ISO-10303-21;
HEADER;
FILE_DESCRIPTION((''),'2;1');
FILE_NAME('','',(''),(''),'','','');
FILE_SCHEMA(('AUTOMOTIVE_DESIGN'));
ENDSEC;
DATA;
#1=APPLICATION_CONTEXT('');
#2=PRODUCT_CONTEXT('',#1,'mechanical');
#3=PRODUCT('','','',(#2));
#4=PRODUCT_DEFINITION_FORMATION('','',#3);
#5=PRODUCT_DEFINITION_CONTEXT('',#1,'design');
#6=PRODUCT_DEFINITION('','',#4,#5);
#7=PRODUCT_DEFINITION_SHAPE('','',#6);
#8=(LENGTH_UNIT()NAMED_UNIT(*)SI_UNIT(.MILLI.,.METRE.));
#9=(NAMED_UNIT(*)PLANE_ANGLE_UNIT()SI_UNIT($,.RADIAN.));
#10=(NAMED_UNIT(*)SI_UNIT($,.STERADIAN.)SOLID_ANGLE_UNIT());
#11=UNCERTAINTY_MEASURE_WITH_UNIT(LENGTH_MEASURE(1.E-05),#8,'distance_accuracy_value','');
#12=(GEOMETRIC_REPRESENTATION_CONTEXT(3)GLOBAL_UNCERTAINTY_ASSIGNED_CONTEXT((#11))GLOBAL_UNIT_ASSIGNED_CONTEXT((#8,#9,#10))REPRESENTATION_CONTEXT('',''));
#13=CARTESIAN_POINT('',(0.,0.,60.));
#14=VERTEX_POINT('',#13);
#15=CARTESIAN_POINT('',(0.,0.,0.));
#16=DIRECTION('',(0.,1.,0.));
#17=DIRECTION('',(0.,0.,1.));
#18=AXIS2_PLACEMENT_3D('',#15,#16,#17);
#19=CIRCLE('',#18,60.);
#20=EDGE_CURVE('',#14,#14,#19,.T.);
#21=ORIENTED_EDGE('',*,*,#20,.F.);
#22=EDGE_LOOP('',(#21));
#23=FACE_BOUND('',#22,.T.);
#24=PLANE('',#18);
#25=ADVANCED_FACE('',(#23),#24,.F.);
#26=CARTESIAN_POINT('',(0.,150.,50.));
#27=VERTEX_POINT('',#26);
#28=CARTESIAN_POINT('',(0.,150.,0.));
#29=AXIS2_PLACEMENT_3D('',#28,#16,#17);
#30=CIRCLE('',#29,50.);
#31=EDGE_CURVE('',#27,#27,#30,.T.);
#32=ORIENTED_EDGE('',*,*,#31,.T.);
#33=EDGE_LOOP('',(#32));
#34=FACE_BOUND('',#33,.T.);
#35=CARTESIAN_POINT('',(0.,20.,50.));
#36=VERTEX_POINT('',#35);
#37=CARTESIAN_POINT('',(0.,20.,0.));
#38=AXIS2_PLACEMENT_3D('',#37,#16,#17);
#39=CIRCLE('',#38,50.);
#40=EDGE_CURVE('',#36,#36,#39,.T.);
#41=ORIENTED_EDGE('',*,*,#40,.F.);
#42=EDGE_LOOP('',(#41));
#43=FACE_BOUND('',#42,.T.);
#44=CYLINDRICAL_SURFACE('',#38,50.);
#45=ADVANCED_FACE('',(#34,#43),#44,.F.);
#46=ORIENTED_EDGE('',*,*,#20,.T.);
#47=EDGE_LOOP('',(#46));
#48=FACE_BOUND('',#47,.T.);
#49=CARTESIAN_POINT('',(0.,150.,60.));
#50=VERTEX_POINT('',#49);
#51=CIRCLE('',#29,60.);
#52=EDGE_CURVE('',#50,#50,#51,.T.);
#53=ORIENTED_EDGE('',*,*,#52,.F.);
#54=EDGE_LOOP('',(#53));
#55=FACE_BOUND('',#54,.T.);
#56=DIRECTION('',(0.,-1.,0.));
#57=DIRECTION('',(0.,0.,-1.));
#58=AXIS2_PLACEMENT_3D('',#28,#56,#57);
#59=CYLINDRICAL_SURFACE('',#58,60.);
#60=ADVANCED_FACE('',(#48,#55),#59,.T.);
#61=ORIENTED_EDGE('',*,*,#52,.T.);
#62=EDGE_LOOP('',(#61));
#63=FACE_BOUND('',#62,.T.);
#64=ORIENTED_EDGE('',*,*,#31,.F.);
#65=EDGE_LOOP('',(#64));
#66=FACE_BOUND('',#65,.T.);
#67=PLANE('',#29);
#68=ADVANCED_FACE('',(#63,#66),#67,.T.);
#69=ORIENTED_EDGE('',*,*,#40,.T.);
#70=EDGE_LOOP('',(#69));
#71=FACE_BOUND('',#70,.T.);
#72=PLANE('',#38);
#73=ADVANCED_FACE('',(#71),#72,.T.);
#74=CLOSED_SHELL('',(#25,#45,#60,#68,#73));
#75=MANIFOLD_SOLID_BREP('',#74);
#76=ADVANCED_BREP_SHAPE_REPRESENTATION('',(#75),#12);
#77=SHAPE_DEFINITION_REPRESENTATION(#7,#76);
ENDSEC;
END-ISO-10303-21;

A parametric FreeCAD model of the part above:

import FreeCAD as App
import Part
import Sketcher

doc = App.newDocument("Part")
body = doc.addObject("PartDesign::Body", "Body")

sketch1 = body.newObject("Sketcher::SketchObject", "Sketch")
sketch1.AttachmentSupport = (doc.getObject("XZ_Plane"), [""])
sketch1.MapMode = "FlatFace"
sketch1.addGeometry(Part.Circle(App.Vector(0, 0, 0), App.Vector(0, 0, 1), 60), False)
sketch1.addConstraint(Sketcher.Constraint("Coincident", 0, 3, -1, 1))
sketch1.addConstraint(Sketcher.Constraint("Diameter", 0, 120.0))
pad1 = body.newObject("PartDesign::Pad", "Pad")
pad1.Profile = sketch1
pad1.Length = 150
pad1.Reversed = True

sketch2 = body.newObject("Sketcher::SketchObject", "Sketch001")
sketch2.AttachmentSupport = (doc.getObject("XZ_Plane"), [""])
sketch2.MapMode = "FlatFace"
sketch2.AttachmentOffset = App.Placement(App.Vector(0, 0, -150), App.Rotation())
sketch2.addGeometry(Part.Circle(App.Vector(0, 0, 0), App.Vector(0, 0, 1), 50), False)
sketch2.addConstraint(Sketcher.Constraint("Coincident", 0, 3, -1, 1))
sketch2.addConstraint(Sketcher.Constraint("Diameter", 0, 100.0))
pocket1 = body.newObject("PartDesign::Pocket", "Pocket")
pocket1.Profile = sketch2
pocket1.Length = 130
pocket1.Reversed = True

doc.recompute()
